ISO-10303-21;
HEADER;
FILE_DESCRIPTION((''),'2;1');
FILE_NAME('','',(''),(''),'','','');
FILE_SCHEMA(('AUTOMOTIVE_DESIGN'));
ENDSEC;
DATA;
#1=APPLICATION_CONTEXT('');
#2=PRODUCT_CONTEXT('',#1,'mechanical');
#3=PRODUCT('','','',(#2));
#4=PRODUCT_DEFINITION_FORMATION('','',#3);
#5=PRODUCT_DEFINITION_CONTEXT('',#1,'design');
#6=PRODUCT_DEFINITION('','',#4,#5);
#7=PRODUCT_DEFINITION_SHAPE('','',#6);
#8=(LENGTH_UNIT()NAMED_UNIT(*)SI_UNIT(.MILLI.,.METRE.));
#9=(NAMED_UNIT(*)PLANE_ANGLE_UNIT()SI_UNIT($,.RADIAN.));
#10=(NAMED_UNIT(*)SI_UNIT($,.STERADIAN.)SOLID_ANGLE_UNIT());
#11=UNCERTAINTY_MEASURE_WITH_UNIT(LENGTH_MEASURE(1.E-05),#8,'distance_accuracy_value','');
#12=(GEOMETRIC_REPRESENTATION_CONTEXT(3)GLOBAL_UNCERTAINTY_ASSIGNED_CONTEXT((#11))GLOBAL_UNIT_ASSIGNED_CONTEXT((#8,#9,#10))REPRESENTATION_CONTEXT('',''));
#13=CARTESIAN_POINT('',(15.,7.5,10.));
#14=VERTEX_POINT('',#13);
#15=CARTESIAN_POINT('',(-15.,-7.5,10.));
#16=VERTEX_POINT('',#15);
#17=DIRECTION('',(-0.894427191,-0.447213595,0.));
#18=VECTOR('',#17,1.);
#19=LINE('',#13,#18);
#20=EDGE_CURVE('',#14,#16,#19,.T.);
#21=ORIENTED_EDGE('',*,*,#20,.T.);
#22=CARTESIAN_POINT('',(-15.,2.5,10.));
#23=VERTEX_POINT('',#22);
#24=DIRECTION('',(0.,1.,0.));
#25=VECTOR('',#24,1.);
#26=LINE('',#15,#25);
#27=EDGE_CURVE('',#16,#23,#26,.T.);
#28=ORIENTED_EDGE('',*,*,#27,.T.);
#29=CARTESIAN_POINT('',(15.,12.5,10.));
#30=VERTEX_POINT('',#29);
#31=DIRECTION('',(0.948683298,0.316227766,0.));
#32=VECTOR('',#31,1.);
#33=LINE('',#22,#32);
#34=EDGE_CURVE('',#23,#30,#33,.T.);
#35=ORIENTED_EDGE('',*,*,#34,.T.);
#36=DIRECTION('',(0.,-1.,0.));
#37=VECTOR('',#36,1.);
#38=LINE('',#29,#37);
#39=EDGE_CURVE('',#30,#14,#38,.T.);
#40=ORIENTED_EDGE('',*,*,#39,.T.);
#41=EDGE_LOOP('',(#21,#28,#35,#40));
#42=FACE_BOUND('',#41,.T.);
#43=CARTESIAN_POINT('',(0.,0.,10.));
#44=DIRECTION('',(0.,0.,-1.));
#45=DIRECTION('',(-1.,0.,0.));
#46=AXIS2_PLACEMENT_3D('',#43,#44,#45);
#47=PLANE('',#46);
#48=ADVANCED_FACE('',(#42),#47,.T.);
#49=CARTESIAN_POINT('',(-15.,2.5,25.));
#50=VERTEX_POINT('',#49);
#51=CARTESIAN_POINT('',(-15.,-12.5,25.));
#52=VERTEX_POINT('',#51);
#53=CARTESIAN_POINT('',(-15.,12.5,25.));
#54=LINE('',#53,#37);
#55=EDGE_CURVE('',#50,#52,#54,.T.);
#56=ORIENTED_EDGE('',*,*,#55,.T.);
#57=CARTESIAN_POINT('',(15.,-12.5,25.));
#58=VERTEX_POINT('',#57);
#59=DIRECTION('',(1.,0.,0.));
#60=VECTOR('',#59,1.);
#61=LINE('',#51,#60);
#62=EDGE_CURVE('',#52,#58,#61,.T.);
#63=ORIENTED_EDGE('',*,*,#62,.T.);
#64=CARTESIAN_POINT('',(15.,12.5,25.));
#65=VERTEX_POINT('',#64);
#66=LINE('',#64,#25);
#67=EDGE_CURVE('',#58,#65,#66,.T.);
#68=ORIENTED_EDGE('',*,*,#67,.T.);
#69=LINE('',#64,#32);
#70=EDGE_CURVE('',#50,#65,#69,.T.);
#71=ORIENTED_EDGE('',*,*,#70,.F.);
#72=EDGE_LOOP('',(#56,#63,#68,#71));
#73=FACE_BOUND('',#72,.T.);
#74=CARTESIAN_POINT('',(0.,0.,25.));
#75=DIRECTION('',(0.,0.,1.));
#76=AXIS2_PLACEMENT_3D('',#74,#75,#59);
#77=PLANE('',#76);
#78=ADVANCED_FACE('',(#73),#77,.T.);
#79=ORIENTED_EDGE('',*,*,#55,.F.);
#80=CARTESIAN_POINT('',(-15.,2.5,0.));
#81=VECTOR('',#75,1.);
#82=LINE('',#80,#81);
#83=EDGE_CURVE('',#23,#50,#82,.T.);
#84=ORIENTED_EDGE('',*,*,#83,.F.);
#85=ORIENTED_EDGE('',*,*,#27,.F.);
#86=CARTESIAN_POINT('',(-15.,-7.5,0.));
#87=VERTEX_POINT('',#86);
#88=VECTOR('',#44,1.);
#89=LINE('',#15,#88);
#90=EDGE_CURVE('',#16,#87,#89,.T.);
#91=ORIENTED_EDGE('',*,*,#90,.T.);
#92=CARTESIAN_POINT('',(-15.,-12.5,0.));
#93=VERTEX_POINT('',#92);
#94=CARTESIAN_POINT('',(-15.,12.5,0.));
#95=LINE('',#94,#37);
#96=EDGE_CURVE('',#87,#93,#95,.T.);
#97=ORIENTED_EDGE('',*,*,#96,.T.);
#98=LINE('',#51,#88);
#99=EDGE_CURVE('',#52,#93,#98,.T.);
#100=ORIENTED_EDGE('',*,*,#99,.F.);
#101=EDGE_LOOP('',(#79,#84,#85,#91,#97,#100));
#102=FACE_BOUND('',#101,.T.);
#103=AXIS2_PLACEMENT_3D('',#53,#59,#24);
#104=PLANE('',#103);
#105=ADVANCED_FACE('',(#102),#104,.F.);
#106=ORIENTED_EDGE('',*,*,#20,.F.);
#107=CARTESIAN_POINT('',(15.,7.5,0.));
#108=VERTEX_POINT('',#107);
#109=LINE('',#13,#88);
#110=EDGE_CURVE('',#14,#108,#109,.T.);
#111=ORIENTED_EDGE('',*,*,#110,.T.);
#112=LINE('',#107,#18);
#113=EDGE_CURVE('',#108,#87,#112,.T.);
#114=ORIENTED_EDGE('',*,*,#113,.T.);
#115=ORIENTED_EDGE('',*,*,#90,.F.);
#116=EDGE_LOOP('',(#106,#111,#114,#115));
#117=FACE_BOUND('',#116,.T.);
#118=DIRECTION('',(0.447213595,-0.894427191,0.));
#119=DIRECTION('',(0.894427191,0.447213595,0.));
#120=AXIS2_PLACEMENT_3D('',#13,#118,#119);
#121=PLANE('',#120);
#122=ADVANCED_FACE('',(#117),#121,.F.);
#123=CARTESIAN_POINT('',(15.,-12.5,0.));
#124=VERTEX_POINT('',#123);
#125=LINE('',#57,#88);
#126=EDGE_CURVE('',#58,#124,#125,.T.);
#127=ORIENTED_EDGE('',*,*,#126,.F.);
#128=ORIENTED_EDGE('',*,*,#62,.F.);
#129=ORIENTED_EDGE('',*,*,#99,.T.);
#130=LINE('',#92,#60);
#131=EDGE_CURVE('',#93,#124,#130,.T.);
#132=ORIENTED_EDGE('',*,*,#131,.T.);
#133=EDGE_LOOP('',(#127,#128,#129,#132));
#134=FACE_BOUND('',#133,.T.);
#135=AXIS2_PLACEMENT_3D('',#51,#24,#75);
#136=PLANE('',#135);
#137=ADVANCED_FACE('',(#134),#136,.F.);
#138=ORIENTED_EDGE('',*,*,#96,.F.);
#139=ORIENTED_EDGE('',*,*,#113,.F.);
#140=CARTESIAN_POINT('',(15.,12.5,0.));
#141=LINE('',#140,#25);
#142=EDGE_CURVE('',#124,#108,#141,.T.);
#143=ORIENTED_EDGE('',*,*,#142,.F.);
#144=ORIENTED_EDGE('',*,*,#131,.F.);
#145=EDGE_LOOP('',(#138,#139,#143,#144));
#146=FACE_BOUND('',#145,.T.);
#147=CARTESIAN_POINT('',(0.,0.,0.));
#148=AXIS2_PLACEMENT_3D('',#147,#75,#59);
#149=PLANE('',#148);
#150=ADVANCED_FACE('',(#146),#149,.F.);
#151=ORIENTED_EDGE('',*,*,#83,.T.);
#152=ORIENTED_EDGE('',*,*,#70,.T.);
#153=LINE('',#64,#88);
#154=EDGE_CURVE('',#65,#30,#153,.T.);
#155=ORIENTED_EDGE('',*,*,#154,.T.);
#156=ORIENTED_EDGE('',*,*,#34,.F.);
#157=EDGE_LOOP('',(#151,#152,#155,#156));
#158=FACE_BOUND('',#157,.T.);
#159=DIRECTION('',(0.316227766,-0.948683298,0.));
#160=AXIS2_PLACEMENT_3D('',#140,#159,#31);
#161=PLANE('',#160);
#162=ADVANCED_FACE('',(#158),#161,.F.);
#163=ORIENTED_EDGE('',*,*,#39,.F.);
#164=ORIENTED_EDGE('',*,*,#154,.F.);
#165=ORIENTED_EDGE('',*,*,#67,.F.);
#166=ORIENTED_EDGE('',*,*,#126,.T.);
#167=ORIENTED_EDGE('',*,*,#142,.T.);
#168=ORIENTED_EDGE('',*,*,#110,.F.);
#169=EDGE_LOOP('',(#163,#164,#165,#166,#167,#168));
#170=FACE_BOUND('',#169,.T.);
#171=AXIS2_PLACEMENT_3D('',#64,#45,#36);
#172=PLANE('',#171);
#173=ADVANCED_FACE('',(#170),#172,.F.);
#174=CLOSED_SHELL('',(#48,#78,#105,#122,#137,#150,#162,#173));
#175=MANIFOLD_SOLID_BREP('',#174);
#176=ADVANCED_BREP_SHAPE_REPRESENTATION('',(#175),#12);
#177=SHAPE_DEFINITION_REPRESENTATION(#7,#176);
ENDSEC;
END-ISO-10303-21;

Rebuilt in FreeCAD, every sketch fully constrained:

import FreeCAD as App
import Part
import Sketcher

V = App.Vector

doc = App.newDocument("Part")
body = doc.addObject("PartDesign::Body", "Body")

sketch1 = doc.addObject("Sketcher::SketchObject", "Sketch")
body.addObject(sketch1)
sketch1.AttachmentSupport = (doc.XY_Plane, [""])
sketch1.MapMode = "FlatFace"
sketch1.addGeometry(Part.LineSegment(V(-15, 12, 0), V(-15, -12, 0)), False)
sketch1.addGeometry(Part.LineSegment(V(-15, -12, 0), V(15, -12, 0)), False)
sketch1.addGeometry(Part.LineSegment(V(15, -12, 0), V(15, 12, 0)), False)
sketch1.addGeometry(Part.LineSegment(V(15, 12, 0), V(-15, 12, 0)), False)
sketch1.addConstraint(Sketcher.Constraint("Coincident", 0, 2, 1, 1))
sketch1.addConstraint(Sketcher.Constraint("Coincident", 1, 2, 2, 1))
sketch1.addConstraint(Sketcher.Constraint("Coincident", 2, 2, 3, 1))
sketch1.addConstraint(Sketcher.Constraint("Coincident", 3, 2, 0, 1))
sketch1.addConstraint(Sketcher.Constraint("Vertical", 0))
sketch1.addConstraint(Sketcher.Constraint("Horizontal", 1))
sketch1.addConstraint(Sketcher.Constraint("Vertical", 2))
sketch1.addConstraint(Sketcher.Constraint("Horizontal", 3))
sketch1.addConstraint(Sketcher.Constraint("Symmetric", 0, 2, 2, 2, -1, 1))
sketch1.addConstraint(Sketcher.Constraint("DistanceX", 1, 1, 1, 2, 30.0))
sketch1.addConstraint(Sketcher.Constraint("DistanceY", 0, 2, 0, 1, 25.0))
pad1 = doc.addObject("PartDesign::Pad", "Pad")
body.addObject(pad1)
pad1.Profile = sketch1
pad1.Length = 25

sketch2 = doc.addObject("Sketcher::SketchObject", "Sketch001")
body.addObject(sketch2)
sketch2.AttachmentSupport = (doc.XY_Plane, [""])
sketch2.MapMode = "FlatFace"
sketch2.AttachmentOffset = App.Placement(V(0, 0, 25), App.Rotation())
sketch2.addGeometry(Part.LineSegment(V(-15, 2, 0), V(15, 12, 0)), False)
sketch2.addGeometry(Part.LineSegment(V(15, 12, 0), V(-15, 12, 0)), False)
sketch2.addGeometry(Part.LineSegment(V(-15, 12, 0), V(-15, 2, 0)), False)
sketch2.addConstraint(Sketcher.Constraint("Coincident", 0, 2, 1, 1))
sketch2.addConstraint(Sketcher.Constraint("Coincident", 1, 2, 2, 1))
sketch2.addConstraint(Sketcher.Constraint("Coincident", 2, 2, 0, 1))
sketch2.addConstraint(Sketcher.Constraint("Horizontal", 1))
sketch2.addConstraint(Sketcher.Constraint("Vertical", 2))
sketch2.addConstraint(Sketcher.Constraint("DistanceX", 1, 2, 1, 1, 30.0))
sketch2.addConstraint(Sketcher.Constraint("DistanceY", 2, 2, 2, 1, 10.0))
sketch2.addConstraint(Sketcher.Constraint("DistanceX", -1, 1, 0, 2, 15.0))
sketch2.addConstraint(Sketcher.Constraint("DistanceY", -1, 1, 0, 2, 12.5))
pocket1 = doc.addObject("PartDesign::Pocket", "Pocket")
body.addObject(pocket1)
pocket1.Profile = sketch2
pocket1.Type = "ThroughAll"

sketch3 = doc.addObject("Sketcher::SketchObject", "Sketch002")
body.addObject(sketch3)
sketch3.AttachmentSupport = (doc.XY_Plane, [""])
sketch3.MapMode = "FlatFace"
sketch3.addGeometry(Part.LineSegment(V(15, 12, 0), V(15, 8, 0)), False)
sketch3.addGeometry(Part.LineSegment(V(15, 8, 0), V(-15, -8, 0)), False)
sketch3.addGeometry(Part.LineSegment(V(-15, -8, 0), V(-15, 2, 0)), False)
sketch3.addGeometry(Part.LineSegment(V(-15, 2, 0), V(15, 12, 0)), False)
sketch3.addConstraint(Sketcher.Constraint("Coincident", 0, 2, 1, 1))
sketch3.addConstraint(Sketcher.Constraint("Coincident", 1, 2, 2, 1))
sketch3.addConstraint(Sketcher.Constraint("Coincident", 2, 2, 3, 1))
sketch3.addConstraint(Sketcher.Constraint("Coincident", 3, 2, 0, 1))
sketch3.addConstraint(Sketcher.Constraint("Vertical", 0))
sketch3.addConstraint(Sketcher.Constraint("Vertical", 2))
sketch3.addConstraint(Sketcher.Constraint("Symmetric", 0, 2, 1, 2, -1, 1))
sketch3.addConstraint(Sketcher.Constraint("DistanceY", 0, 2, 0, 1, 5.0))
sketch3.addConstraint(Sketcher.Constraint("DistanceY", 2, 1, 2, 2, 10.0))
sketch3.addConstraint(Sketcher.Constraint("DistanceX", -1, 1, 0, 2, 15.0))
sketch3.addConstraint(Sketcher.Constraint("DistanceY", 1, 2, 0, 2, 15.0))
pocket2 = doc.addObject("PartDesign::Pocket", "Pocket001")
body.addObject(pocket2)
pocket2.Profile = sketch3
pocket2.Length = 10
pocket2.Reversed = True

doc.recompute()
